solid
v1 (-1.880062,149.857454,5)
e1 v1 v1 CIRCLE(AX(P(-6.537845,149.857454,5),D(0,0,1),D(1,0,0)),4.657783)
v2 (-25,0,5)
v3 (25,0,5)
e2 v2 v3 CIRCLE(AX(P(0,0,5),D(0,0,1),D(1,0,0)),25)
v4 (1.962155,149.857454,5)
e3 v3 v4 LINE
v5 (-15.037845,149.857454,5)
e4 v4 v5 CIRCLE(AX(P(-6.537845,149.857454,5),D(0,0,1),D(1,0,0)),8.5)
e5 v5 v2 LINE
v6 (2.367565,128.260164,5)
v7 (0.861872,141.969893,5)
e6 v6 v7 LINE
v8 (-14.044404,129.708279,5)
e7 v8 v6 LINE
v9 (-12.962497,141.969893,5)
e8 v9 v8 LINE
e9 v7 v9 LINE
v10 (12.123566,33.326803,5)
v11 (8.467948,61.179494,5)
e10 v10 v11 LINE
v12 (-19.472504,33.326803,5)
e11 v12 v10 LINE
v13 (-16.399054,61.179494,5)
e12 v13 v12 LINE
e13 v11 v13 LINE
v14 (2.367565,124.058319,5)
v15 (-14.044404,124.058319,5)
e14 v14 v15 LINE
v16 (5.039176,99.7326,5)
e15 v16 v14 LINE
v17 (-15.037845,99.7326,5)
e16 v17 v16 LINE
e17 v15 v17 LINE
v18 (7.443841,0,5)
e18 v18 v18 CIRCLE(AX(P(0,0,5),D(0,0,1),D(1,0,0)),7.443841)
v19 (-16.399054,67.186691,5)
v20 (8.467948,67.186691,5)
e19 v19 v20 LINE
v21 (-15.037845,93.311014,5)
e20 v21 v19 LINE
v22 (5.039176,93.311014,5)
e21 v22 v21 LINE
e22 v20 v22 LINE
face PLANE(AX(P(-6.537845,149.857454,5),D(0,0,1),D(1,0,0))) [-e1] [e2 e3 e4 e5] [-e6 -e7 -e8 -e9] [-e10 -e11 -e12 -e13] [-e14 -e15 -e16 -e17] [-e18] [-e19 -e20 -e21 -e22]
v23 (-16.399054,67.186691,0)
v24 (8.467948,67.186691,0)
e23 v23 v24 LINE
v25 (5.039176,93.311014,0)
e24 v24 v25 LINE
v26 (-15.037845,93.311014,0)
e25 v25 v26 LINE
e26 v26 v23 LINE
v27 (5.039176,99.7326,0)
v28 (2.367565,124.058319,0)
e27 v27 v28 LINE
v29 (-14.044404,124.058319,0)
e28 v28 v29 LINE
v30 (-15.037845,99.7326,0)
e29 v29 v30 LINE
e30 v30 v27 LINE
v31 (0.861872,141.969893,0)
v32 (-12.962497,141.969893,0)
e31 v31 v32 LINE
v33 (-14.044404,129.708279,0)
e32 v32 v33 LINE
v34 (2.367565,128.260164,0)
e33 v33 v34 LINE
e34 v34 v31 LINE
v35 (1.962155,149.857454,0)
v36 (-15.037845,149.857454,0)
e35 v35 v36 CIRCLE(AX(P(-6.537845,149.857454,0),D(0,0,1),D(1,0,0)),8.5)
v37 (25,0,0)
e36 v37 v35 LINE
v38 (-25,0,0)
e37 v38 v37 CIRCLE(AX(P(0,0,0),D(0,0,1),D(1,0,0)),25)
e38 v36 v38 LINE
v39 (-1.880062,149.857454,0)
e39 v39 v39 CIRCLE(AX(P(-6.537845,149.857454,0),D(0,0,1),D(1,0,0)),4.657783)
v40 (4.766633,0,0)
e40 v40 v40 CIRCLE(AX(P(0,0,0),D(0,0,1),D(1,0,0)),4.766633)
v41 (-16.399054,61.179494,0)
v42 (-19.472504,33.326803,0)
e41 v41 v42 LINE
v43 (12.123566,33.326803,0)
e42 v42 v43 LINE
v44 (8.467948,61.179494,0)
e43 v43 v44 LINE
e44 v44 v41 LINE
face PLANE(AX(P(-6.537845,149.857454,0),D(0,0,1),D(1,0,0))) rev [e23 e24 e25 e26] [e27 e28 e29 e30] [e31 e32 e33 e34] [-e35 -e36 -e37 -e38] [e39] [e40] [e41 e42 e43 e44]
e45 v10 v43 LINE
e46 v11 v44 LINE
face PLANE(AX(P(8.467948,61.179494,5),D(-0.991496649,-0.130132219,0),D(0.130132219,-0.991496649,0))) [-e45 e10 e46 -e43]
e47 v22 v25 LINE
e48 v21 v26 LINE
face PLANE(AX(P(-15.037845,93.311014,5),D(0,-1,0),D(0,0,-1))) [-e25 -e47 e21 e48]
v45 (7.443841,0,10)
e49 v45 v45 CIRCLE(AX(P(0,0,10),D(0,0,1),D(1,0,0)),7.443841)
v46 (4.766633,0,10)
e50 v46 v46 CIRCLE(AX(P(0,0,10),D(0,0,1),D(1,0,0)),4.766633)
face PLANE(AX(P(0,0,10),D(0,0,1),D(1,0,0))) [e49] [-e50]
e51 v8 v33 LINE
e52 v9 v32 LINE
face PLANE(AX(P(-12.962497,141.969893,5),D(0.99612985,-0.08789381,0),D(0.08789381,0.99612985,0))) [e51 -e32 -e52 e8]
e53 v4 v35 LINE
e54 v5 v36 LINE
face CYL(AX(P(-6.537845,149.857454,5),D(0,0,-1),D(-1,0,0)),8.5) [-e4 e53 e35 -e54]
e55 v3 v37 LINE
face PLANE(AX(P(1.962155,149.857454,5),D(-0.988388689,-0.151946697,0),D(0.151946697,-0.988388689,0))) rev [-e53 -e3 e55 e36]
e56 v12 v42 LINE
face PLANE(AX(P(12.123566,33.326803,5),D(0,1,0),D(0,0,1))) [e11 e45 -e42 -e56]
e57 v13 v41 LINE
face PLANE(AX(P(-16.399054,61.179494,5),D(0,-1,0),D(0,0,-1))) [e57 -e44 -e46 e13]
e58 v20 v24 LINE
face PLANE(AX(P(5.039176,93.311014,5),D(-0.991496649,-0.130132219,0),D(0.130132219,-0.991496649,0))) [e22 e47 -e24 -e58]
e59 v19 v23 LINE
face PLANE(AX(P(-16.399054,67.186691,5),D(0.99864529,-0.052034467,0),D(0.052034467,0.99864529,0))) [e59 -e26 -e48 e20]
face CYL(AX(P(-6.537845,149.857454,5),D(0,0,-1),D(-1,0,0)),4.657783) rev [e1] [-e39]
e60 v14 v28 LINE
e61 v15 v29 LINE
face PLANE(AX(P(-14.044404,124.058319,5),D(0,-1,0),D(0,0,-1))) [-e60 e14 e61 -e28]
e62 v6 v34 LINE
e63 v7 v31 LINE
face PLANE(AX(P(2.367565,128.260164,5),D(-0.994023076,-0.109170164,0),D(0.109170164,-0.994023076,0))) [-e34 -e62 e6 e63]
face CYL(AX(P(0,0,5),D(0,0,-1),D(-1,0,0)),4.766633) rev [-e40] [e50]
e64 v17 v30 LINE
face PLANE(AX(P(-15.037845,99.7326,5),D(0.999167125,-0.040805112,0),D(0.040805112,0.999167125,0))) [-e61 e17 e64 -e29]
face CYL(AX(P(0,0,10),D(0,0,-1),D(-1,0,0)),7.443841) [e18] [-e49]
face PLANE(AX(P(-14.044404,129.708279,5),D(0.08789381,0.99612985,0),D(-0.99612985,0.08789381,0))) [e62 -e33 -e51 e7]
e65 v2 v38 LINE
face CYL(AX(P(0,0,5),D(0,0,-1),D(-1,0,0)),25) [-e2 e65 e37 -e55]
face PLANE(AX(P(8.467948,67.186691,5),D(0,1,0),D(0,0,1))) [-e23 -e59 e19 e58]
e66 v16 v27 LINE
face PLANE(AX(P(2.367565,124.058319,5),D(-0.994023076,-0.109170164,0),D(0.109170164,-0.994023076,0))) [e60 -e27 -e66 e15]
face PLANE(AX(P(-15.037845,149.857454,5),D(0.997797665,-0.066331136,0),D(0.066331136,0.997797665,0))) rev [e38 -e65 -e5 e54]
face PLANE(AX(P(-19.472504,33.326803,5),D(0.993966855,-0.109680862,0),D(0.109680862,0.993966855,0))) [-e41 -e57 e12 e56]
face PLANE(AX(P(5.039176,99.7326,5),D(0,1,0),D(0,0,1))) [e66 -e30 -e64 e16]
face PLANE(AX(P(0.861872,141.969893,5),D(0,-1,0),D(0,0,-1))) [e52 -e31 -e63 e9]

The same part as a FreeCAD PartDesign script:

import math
import FreeCAD as App
import Part
import Sketcher
Q = App.Units.Quantity


def add_polygon(sketch, points):
    """Adds a closed chain of lines whose ends are joined by coincident constraints."""
    first, n = sketch.GeometryCount, len(points)
    for a, b in zip(points, points[1:] + points[:1]):
        sketch.addGeometry(Part.LineSegment(App.Vector(*a, 0), App.Vector(*b, 0)), False)
    for i in range(n):
        sketch.addConstraint(Sketcher.Constraint("Coincident", first + i, 2, first + (i + 1) % n, 1))

doc = App.newDocument("Part")
body = doc.addObject("PartDesign::Body", "Body")

# Sketch on XY plane
sketch1 = body.newObject("Sketcher::SketchObject", "Sketch")
sketch1.AttachmentSupport = (doc.getObject("XY_Plane"), [""])
sketch1.MapMode = "FlatFace"
sketch1.addGeometry(Part.LineSegment(App.Vector(-15, 149.9, 0), App.Vector(-25, 0, 0)), False)  # 0
sketch1.addGeometry(Part.ArcOfCircle(Part.Circle(App.Vector(0, 0, 0), App.Vector(0, 0, 1), 25), math.radians(180), math.radians(360)), False)  # 1
sketch1.addGeometry(Part.LineSegment(App.Vector(25, 0, 0), App.Vector(2, 149.9, 0)), False)  # 2
sketch1.addGeometry(Part.ArcOfCircle(Part.Circle(App.Vector(-6.5, 149.9, 0), App.Vector(0, 0, 1), 8.5), math.radians(0), math.radians(180)), False)  # 3
sketch1.addGeometry(Part.Circle(App.Vector(0, 0, 0), App.Vector(0, 0, 1), 4.8), False)  # 4
add_polygon(sketch1, [(12.1, 33.3), (-19.5, 33.3), (-16.4, 61.2), (8.5, 61.2)])  # lines 5-8
add_polygon(sketch1, [(8.5, 67.2), (-16.4, 67.2), (-15, 93.3), (5, 93.3)])  # lines 9-12
add_polygon(sketch1, [(5, 99.7), (-15, 99.7), (-14, 124.1), (2.4, 124.1)])  # lines 13-16
add_polygon(sketch1, [(-14, 129.7), (-13, 142), (0.9, 142), (2.4, 128.3)])  # lines 17-20
sketch1.addGeometry(Part.Circle(App.Vector(-6.5, 149.9, 0), App.Vector(0, 0, 1), 4.7), False)  # 21
sketch1.addConstraint([
    Sketcher.Constraint("Coincident", 0, 2, 1, 1),
    Sketcher.Constraint("Coincident", 1, 2, 2, 1),
    Sketcher.Constraint("Coincident", 2, 2, 3, 1),
    Sketcher.Constraint("Coincident", 3, 2, 0, 1),
    Sketcher.Constraint("Horizontal", 5),
    Sketcher.Constraint("Horizontal", 7),
    Sketcher.Constraint("Horizontal", 9),
    Sketcher.Constraint("Horizontal", 11),
    Sketcher.Constraint("Horizontal", 13),
    Sketcher.Constraint("Horizontal", 15),
    Sketcher.Constraint("Horizontal", 18),
    Sketcher.Constraint("Coincident", 1, 3, -1, 1),
    Sketcher.Constraint("Coincident", 4, 3, -1, 1),
    Sketcher.Constraint("Coincident", 21, 3, 3, 3),
    Sketcher.Constraint("PointOnObject", 0, 2, -1),
    Sketcher.Constraint("PointOnObject", 1, 2, -1),
    Sketcher.Constraint("Parallel", 8, 12),
    Sketcher.Constraint("Parallel", 16, 19),
    Sketcher.Constraint("Perpendicular", 17, 20),
    Sketcher.Constraint("Horizontal", 21, 3, 2, 2),
    Sketcher.Constraint("Horizontal", 2, 2, 3, 2),
    Sketcher.Constraint("Vertical", 6, 2, 9, 2),
    Sketcher.Constraint("Vertical", 3, 2, 10, 2),
    Sketcher.Constraint("Vertical", 7, 2, 12, 2),
    Sketcher.Constraint("Vertical", 10, 2, 13, 2),
    Sketcher.Constraint("Vertical", 11, 2, 16, 2),
    Sketcher.Constraint("Vertical", 15, 2, 19, 2),
    Sketcher.Constraint("Vertical", 14, 2, 20, 2),
    Sketcher.Constraint("Radius", 1, Q("25 mm")),
    Sketcher.Constraint("Radius", 3, Q("8.5 mm")),
    Sketcher.Constraint("Diameter", 4, Q("9.533265 mm")),
    Sketcher.Constraint("Diameter", 21, Q("9.315565 mm")),
    Sketcher.Constraint("DistanceX", 5, 2, 5, 1, Q("31.596069 mm")),
    Sketcher.Constraint("DistanceX", 11, 1, 11, 2, Q("20.077021 mm")),
    Sketcher.Constraint("DistanceX", 15, 1, 15, 2, Q("16.411969 mm")),
    Sketcher.Constraint("DistanceX", 18, 1, 18, 2, Q("13.824369 mm")),
    Sketcher.Constraint("DistanceY", -1, 1, 13, 2, Q("99.7326 mm")),
    Sketcher.Constraint("Distance", 0, Q("150.188219 mm")),
    Sketcher.Constraint("Distance", 6, Q("28.02175 mm")),
    Sketcher.Constraint("Distance", 10, Q("26.159761 mm")),
    Sketcher.Constraint("Distance", 12, Q("26.348372 mm")),
    Sketcher.Constraint("DistanceX", 7, 1, 7, 2, Q("24.867002 mm")),
    Sketcher.Constraint("DistanceX", -1, 1, 7, 2, Q("8.467948 mm")),
    Sketcher.Constraint("DistanceY", -1, 1, 9, 2, Q("67.186691 mm")),
    Sketcher.Constraint("DistanceY", -1, 1, 14, 2, Q("124.058319 mm")),
    Sketcher.Constraint("DistanceY", -1, 1, 20, 2, Q("129.708279 mm")),
    Sketcher.Constraint("DistanceY", 5, 2, 3, 2, Q("116.530651 mm")),
    Sketcher.Constraint("DistanceX", 13, 2, 14, 2, Q("0.993441 mm")),
    Sketcher.Constraint("DistanceX", 3, 2, 17, 2, Q("2.075348 mm")),
])
pad1 = body.newObject("PartDesign::Pad", "Pad")
pad1.Profile = sketch1
pad1.Length = 5

# Sketch on XY plane
sketch2 = body.newObject("Sketcher::SketchObject", "Sketch001")
sketch2.AttachmentSupport = (doc.getObject("XY_Plane"), [""])
sketch2.MapMode = "FlatFace"
sketch2.AttachmentOffset = App.Placement(App.Vector(0, 0, 5), App.Rotation())
sketch2.addGeometry([
    Part.Circle(App.Vector(0, 0, 0), App.Vector(0, 0, 1), 7.4),
    Part.Circle(App.Vector(0, 0, 0), App.Vector(0, 0, 1), 4.8),
], False)
sketch2.addConstraint([
    Sketcher.Constraint("Coincident", 0, 3, -1, 1),
    Sketcher.Constraint("Coincident", 1, 3, -1, 1),
    Sketcher.Constraint("Diameter", 0, Q("14.887682 mm")),
    Sketcher.Constraint("Diameter", 1, Q("9.533265 mm")),
])
pad2 = body.newObject("PartDesign::Pad", "Pad001")
pad2.Profile = sketch2
pad2.Length = 5

doc.recompute()
